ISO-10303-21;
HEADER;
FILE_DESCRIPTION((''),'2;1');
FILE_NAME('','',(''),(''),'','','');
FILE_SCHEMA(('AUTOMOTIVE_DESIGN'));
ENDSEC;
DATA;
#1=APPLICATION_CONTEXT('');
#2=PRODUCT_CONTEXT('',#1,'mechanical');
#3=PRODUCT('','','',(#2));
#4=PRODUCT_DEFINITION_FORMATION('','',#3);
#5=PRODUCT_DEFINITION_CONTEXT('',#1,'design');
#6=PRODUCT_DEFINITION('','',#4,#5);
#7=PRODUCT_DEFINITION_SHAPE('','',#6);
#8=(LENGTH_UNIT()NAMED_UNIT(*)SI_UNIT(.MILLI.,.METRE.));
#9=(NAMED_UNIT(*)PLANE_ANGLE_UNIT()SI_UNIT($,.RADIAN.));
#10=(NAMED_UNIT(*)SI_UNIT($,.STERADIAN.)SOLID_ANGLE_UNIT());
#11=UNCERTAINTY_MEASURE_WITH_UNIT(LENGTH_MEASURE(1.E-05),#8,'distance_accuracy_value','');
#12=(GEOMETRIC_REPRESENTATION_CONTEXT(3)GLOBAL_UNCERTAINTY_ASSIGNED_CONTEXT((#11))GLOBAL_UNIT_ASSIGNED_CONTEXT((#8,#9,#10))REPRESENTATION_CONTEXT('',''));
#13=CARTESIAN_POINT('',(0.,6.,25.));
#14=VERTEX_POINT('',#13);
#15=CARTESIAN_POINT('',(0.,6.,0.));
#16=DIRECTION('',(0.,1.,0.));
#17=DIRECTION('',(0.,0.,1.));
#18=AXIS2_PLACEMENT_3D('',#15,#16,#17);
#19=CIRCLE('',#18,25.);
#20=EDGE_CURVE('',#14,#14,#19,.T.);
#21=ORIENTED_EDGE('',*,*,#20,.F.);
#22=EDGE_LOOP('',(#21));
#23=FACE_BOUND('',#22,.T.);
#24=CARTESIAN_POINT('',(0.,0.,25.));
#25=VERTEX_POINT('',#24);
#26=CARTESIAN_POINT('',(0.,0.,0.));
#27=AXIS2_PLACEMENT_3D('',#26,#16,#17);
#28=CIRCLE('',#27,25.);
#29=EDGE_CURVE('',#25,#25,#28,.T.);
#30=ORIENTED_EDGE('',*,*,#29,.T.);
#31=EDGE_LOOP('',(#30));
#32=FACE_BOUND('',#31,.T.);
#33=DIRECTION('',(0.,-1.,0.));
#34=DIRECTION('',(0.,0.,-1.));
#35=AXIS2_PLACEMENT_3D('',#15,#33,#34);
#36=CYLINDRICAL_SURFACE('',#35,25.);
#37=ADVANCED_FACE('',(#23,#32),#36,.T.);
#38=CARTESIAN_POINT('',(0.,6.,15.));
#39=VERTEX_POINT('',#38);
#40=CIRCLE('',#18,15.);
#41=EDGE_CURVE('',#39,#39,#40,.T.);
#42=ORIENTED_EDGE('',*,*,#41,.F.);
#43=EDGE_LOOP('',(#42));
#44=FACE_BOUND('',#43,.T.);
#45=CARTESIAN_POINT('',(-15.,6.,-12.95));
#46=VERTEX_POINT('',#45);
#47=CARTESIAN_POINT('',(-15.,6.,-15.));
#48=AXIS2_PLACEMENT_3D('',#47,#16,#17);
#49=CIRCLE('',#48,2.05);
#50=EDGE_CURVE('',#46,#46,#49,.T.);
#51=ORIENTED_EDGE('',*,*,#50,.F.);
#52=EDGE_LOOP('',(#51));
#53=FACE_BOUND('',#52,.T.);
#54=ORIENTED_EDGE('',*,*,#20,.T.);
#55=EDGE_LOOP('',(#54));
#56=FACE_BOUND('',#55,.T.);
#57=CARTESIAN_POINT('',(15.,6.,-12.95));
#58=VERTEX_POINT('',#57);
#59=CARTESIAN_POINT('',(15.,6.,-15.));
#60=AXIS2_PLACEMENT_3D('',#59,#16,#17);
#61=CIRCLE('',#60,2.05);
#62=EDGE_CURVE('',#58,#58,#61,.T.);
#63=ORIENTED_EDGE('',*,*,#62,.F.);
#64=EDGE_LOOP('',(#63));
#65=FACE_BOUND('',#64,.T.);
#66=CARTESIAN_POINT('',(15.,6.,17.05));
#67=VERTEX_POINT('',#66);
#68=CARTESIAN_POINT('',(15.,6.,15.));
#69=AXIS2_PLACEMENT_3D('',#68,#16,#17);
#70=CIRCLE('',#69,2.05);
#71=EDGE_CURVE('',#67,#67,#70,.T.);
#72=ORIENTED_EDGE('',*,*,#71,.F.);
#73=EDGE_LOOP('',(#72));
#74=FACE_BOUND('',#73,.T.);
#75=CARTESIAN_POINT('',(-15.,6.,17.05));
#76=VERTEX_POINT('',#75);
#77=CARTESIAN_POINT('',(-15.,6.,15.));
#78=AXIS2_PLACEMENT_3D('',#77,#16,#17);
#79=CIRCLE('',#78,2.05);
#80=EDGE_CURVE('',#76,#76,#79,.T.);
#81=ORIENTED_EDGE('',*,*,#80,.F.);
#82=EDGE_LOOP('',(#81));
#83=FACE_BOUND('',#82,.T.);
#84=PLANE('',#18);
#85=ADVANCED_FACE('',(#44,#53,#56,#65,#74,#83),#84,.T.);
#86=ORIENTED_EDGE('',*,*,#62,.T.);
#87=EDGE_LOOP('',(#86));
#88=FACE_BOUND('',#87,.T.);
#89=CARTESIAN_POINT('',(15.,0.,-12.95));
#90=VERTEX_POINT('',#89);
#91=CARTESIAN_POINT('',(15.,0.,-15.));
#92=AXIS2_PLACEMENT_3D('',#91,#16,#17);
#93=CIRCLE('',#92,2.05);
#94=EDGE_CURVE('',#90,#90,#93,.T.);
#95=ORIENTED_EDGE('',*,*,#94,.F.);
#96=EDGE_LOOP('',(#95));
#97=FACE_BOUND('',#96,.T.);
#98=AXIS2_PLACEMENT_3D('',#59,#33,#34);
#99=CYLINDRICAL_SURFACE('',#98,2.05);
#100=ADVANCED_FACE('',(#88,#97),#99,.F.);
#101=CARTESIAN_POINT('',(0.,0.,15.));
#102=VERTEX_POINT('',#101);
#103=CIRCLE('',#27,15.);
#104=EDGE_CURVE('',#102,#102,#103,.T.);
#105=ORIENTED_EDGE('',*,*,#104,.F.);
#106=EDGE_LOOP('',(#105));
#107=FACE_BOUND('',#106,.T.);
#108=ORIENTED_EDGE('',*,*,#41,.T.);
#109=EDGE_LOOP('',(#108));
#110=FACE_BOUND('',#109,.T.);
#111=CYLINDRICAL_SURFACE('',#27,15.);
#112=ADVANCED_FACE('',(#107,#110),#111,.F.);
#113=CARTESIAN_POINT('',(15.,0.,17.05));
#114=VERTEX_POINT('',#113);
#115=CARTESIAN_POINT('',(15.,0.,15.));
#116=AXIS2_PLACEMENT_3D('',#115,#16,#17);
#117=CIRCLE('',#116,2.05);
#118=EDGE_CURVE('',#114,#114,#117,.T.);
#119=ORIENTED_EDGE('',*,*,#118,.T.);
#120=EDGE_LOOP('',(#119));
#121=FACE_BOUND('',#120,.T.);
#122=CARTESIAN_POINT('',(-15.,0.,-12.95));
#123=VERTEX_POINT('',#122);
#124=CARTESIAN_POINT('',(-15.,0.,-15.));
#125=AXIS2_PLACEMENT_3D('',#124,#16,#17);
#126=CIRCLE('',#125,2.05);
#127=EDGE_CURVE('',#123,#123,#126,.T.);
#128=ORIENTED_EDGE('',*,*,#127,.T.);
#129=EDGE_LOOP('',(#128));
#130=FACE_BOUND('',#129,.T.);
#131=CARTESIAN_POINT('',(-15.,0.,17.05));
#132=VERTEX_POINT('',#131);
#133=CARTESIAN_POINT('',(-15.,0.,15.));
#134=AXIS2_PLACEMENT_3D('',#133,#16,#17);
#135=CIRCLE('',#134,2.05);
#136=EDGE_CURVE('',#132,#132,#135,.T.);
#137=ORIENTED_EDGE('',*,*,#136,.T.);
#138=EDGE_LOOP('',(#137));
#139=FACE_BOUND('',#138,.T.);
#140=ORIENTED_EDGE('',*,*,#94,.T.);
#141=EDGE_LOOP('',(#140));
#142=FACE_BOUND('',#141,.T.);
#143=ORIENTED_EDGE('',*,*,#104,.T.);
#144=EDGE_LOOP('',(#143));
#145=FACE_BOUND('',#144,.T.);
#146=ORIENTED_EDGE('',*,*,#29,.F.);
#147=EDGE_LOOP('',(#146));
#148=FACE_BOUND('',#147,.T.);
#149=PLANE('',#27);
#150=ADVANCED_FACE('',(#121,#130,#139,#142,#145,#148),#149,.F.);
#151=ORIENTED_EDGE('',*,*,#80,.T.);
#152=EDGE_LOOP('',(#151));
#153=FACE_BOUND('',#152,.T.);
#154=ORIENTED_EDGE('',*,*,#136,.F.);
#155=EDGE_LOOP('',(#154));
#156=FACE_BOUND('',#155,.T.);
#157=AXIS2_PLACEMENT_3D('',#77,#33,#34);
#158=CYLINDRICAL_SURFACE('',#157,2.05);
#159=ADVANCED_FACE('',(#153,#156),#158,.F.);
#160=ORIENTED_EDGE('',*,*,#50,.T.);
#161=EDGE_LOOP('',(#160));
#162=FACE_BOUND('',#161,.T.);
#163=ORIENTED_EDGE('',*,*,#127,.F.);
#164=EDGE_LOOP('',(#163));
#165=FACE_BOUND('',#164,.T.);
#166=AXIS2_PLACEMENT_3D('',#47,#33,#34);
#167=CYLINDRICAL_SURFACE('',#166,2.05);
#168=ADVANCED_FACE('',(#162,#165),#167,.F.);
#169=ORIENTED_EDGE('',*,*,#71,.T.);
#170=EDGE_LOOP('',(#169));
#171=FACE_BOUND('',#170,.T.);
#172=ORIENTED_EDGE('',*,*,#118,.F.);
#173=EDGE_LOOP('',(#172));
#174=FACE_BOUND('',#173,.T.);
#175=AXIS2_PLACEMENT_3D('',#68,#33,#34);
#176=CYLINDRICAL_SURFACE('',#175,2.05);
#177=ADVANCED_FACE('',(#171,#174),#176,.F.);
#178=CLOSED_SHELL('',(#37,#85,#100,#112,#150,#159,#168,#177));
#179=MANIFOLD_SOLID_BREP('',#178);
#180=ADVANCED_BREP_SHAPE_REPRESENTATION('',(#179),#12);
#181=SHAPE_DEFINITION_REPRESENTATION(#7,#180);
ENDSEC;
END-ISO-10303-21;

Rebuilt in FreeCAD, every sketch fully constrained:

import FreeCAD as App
import Part
import Sketcher

doc = App.newDocument("Part")
body = doc.addObject("PartDesign::Body", "Body")

# Sketch on XZ plane
sketch1 = body.newObject("Sketcher::SketchObject", "Sketch")
sketch1.AttachmentSupport = (doc.getObject("XZ_Plane"), [""])
sketch1.MapMode = "FlatFace"
sketch1.addGeometry(Part.Circle(App.Vector(0, 0, 0), App.Vector(0, 0, 1), 25), False)
sketch1.addGeometry(Part.Circle(App.Vector(-15, -15, 0), App.Vector(0, 0, 1), 2.05), False)
sketch1.addGeometry(Part.Circle(App.Vector(-15, 15, 0), App.Vector(0, 0, 1), 2.05), False)
sketch1.addGeometry(Part.Circle(App.Vector(15, -15, 0), App.Vector(0, 0, 1), 2.05), False)
sketch1.addGeometry(Part.Circle(App.Vector(15, 15, 0), App.Vector(0, 0, 1), 2.05), False)
sketch1.addConstraint(Sketcher.Constraint("Coincident", 0, 3, -1, 1))
sketch1.addConstraint(Sketcher.Constraint("Equal", 1, 2))
sketch1.addConstraint(Sketcher.Constraint("Equal", 2, 3))
sketch1.addConstraint(Sketcher.Constraint("Equal", 3, 4))
sketch1.addConstraint(Sketcher.Constraint("Symmetric", 2, 3, 3, 3, -1, 1))
sketch1.addConstraint(Sketcher.Constraint("Symmetric", 1, 3, 4, 3, -1, 1))
sketch1.addConstraint(Sketcher.Constraint("Symmetric", 1, 3, 3, 3, -2))
sketch1.addConstraint(Sketcher.Constraint("Diameter", 0, 50.0))
sketch1.addConstraint(Sketcher.Constraint("Diameter", 1, 4.1))
sketch1.addConstraint(Sketcher.Constraint("DistanceX", 1, 3, -1, 1, 15.0))
sketch1.addConstraint(Sketcher.Constraint("DistanceY", 1, 3, -1, 1, 15.0))
pad1 = body.newObject("PartDesign::Pad", "Pad")
pad1.Profile = sketch1
pad1.Length = 6
pad1.Reversed = True

# Sketch on XZ plane
sketch2 = body.newObject("Sketcher::SketchObject", "Sketch001")
sketch2.AttachmentSupport = (doc.getObject("XZ_Plane"), [""])
sketch2.MapMode = "FlatFace"
sketch2.AttachmentOffset = App.Placement(App.Vector(0, 0, -6), App.Rotation())
sketch2.addGeometry(Part.Circle(App.Vector(0, 0, 0), App.Vector(0, 0, 1), 15), False)
sketch2.addConstraint(Sketcher.Constraint("Coincident", 0, 3, -1, 1))
sketch2.addConstraint(Sketcher.Constraint("Diameter", 0, 30.0))
pocket1 = body.newObject("PartDesign::Pocket", "Pocket")
pocket1.Profile = sketch2
pocket1.Type = "ThroughAll"
pocket1.Reversed = True

doc.recompute()
